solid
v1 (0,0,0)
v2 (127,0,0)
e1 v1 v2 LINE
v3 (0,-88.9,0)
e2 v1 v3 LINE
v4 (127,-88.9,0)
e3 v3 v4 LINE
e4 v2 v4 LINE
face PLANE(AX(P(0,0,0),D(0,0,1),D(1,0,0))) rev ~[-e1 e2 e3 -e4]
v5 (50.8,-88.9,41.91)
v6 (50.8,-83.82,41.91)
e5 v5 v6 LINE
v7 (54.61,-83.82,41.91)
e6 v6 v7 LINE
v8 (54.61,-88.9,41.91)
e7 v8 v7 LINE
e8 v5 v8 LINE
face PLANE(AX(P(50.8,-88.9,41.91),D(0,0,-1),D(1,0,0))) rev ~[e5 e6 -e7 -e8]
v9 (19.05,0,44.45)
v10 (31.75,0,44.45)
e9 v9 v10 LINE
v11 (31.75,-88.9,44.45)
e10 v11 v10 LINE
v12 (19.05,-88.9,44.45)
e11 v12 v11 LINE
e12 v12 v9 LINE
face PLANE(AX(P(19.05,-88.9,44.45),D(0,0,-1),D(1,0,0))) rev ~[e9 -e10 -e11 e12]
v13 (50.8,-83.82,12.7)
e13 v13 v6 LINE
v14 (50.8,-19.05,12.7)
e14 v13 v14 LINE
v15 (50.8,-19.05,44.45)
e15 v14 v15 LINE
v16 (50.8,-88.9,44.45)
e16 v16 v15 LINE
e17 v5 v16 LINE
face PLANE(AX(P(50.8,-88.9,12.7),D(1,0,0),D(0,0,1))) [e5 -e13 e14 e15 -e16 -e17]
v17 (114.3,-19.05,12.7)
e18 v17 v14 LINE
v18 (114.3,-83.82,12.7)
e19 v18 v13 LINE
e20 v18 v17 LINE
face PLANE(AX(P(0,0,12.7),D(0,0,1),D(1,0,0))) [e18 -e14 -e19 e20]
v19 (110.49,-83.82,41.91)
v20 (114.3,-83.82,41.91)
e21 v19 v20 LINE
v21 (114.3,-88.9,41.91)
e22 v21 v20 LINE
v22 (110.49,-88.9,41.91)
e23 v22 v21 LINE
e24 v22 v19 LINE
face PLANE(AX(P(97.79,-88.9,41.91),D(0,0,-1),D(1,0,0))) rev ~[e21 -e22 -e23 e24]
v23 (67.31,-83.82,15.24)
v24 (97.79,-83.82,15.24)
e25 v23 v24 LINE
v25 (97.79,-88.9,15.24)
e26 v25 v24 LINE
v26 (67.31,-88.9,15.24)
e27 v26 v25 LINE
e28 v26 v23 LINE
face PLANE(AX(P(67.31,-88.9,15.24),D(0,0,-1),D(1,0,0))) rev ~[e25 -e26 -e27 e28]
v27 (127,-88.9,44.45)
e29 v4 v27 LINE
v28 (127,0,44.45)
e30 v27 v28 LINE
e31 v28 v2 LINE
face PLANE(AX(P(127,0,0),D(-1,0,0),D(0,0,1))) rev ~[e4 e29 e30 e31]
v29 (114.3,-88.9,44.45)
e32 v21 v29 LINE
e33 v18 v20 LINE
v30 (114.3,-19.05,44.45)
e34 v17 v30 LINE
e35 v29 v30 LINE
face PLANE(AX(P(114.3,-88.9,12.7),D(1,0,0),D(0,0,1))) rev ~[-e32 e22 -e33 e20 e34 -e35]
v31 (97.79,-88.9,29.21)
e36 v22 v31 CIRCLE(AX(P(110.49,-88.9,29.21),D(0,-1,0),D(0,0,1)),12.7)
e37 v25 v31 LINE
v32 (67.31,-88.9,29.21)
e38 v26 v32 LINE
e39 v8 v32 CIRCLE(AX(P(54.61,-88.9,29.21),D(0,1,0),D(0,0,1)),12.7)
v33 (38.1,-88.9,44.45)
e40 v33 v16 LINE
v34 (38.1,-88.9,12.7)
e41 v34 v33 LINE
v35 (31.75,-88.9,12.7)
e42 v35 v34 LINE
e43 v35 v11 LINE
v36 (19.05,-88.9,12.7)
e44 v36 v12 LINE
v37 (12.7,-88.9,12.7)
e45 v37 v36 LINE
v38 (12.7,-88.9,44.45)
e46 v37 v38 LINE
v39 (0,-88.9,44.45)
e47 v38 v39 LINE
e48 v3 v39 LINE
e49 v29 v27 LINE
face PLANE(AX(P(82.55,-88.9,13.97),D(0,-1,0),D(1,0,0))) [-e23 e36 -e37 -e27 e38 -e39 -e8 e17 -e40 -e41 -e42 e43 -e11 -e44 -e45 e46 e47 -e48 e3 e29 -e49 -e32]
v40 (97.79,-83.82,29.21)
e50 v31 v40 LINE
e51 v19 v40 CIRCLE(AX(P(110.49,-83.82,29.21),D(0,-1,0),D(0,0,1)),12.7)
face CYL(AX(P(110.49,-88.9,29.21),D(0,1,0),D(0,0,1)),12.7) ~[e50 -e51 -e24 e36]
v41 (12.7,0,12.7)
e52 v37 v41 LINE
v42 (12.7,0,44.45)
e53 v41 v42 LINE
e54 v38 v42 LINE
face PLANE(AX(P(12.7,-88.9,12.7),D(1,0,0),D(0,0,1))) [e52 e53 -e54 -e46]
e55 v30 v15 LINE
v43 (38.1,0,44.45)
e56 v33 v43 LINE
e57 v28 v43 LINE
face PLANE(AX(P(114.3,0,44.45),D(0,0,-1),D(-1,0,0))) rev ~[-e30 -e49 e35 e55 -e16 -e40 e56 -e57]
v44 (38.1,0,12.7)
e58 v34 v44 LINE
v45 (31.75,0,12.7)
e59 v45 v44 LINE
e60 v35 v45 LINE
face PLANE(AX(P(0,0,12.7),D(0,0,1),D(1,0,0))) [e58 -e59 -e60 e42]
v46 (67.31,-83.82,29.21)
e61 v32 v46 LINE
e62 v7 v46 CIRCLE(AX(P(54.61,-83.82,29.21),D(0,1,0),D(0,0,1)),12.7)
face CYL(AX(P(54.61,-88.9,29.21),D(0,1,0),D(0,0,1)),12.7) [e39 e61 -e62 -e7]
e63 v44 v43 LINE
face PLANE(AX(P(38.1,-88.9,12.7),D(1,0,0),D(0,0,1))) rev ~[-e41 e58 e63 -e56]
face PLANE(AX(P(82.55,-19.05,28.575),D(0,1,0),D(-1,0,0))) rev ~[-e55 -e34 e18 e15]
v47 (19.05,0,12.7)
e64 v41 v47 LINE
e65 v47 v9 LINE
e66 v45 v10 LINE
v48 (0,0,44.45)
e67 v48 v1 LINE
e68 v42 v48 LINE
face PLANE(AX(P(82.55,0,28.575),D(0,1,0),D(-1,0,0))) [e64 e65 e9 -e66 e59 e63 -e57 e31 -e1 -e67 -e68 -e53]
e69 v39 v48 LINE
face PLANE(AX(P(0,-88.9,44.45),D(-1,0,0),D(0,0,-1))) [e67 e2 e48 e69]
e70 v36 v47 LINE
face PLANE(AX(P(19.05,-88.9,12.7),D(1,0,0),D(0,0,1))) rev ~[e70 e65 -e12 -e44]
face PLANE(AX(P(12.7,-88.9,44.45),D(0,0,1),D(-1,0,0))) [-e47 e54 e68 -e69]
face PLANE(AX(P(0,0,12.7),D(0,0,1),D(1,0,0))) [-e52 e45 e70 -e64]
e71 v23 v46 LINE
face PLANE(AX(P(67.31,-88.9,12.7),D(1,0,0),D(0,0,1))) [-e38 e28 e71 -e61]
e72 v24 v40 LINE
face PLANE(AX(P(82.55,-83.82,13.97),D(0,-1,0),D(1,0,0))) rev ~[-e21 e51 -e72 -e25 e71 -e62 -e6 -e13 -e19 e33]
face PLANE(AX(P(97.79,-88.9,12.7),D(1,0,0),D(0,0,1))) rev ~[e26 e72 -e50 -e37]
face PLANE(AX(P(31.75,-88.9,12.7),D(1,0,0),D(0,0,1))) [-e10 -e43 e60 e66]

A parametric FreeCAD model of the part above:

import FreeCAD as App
import Part
import Sketcher
from FreeCAD import Vector
Q = App.Units.Quantity


def edges_at(feature, points):
    """Names of the edges that pass closest to the given points."""
    edges = feature.Shape.Edges
    near = lambda p: min(range(len(edges)), key=lambda i: edges[i].distToShape(Part.Vertex(*p))[0])
    return sorted({f"Edge{near(p) + 1}" for p in points})


def add_polygon(sketch, points):
    """Adds a closed chain of lines whose ends are joined by coincident constraints."""
    first, n = sketch.GeometryCount, len(points)
    for a, b in zip(points, points[1:] + points[:1]):
        sketch.addGeometry(Part.LineSegment(App.Vector(*a, 0), App.Vector(*b, 0)), False)
    for i in range(n):
        sketch.addConstraint(Sketcher.Constraint("Coincident", first + i, 2, first + (i + 1) % n, 1))

doc = App.newDocument("Part")
body = doc.addObject("PartDesign::Body", "Body")

sketch1 = body.newObject("Sketcher::SketchObject", "Sketch")
sketch1.AttachmentSupport = (doc.getObject("XZ_Plane"), [""])
sketch1.MapMode = "FlatFace"
add_polygon(sketch1, [(0, 13), (0, 0), (127, 0), (127, 13)])
sketch1.addConstraint(Sketcher.Constraint("Vertical", 0))
sketch1.addConstraint(Sketcher.Constraint("Horizontal", 1))
sketch1.addConstraint(Sketcher.Constraint("Vertical", 2))
sketch1.addConstraint(Sketcher.Constraint("Horizontal", 3))
sketch1.addConstraint(Sketcher.Constraint("Coincident", 0, 2, -1, 1))
sketch1.addConstraint(Sketcher.Constraint("DistanceX", 1, 1, 1, 2, Q("5 in")))
sketch1.addConstraint(Sketcher.Constraint("DistanceY", 0, 2, 0, 1, Q("0.5 in")))
pad1 = body.newObject("PartDesign::Pad", "Pad")
pad1.Profile = sketch1
pad1.Length = Q("3.5 in")

sketch2 = body.newObject("Sketcher::SketchObject", "Sketch001")
sketch2.AttachmentSupport = (doc.getObject("XZ_Plane"), [""])
sketch2.MapMode = "FlatFace"
sketch2.AttachmentOffset = App.Placement(Vector(0, 0, 3.5 * 25.4), App.Rotation())
add_polygon(sketch2, [(0, 44), (0, 13), (13, 13), (13, 44)])
add_polygon(sketch2, [(19, 44), (19, 13), (32, 13), (32, 44)])
add_polygon(sketch2, [(38, 44), (38, 13), (51, 13), (51, 44)])
add_polygon(sketch2, [(114, 44), (114, 13), (127, 13), (127, 44)])
sketch2.addConstraint(Sketcher.Constraint("Vertical", 0))
sketch2.addConstraint(Sketcher.Constraint("Horizontal", 1))
sketch2.addConstraint(Sketcher.Constraint("Vertical", 2))
sketch2.addConstraint(Sketcher.Constraint("Horizontal", 3))
sketch2.addConstraint(Sketcher.Constraint("Vertical", 4))
sketch2.addConstraint(Sketcher.Constraint("Horizontal", 5))
sketch2.addConstraint(Sketcher.Constraint("Vertical", 6))
sketch2.addConstraint(Sketcher.Constraint("Horizontal", 7))
sketch2.addConstraint(Sketcher.Constraint("Vertical", 8))
sketch2.addConstraint(Sketcher.Constraint("Horizontal", 9))
sketch2.addConstraint(Sketcher.Constraint("Vertical", 10))
sketch2.addConstraint(Sketcher.Constraint("Horizontal", 11))
sketch2.addConstraint(Sketcher.Constraint("Vertical", 12))
sketch2.addConstraint(Sketcher.Constraint("Horizontal", 13))
sketch2.addConstraint(Sketcher.Constraint("Vertical", 14))
sketch2.addConstraint(Sketcher.Constraint("Horizontal", 15))
sketch2.addConstraint(Sketcher.Constraint("PointOnObject", 0, 2, -2))
sketch2.addConstraint(Sketcher.Constraint("Horizontal", 1, 2, 4, 2))
sketch2.addConstraint(Sketcher.Constraint("Horizontal", 3, 2, 6, 2))
sketch2.addConstraint(Sketcher.Constraint("Horizontal", 5, 2, 8, 2))
sketch2.addConstraint(Sketcher.Constraint("Horizontal", 7, 2, 10, 2))
sketch2.addConstraint(Sketcher.Constraint("Horizontal", 9, 2, 12, 2))
sketch2.addConstraint(Sketcher.Constraint("Horizontal", 11, 2, 14, 2))
sketch2.addConstraint(Sketcher.Constraint("Equal", 3, 5))
sketch2.addConstraint(Sketcher.Constraint("Equal", 7, 9))
sketch2.addConstraint(Sketcher.Constraint("Equal", 11, 13))
sketch2.addConstraint(Sketcher.Constraint("DistanceX", 1, 1, 1, 2, Q("0.5 in")))
sketch2.addConstraint(Sketcher.Constraint("DistanceX", -1, 1, 9, 2, Q("2 in")))
sketch2.addConstraint(Sketcher.Constraint("DistanceX", -1, 1, 13, 2, Q("5 in")))
sketch2.addConstraint(Sketcher.Constraint("DistanceY", 0, 2, 0, 1, Q("1.25 in")))
sketch2.addConstraint(Sketcher.Constraint("DistanceY", -1, 1, 0, 2, Q("0.5 in")))
sketch2.addConstraint(Sketcher.Constraint("DistanceX", -1, 1, 4, 2, Q("0.75 in")))
pad2 = body.newObject("PartDesign::Pad", "Pad001")
pad2.Profile = sketch2
pad2.Length = Q("3.5 in")
pad2.Reversed = True

sketch3 = body.newObject("Sketcher::SketchObject", "Sketch002")
sketch3.AttachmentSupport = (doc.getObject("XZ_Plane"), [""])
sketch3.MapMode = "FlatFace"
sketch3.AttachmentOffset = App.Placement(Vector(0, 0, 3.5 * 25.4), App.Rotation())
add_polygon(sketch3, [(51, 42), (51, 13), (67, 13), (67, 42)])
add_polygon(sketch3, [(98, 42), (98, 13), (114, 13), (114, 42)])
sketch3.addConstraint(Sketcher.Constraint("Vertical", 0))
sketch3.addConstraint(Sketcher.Constraint("Horizontal", 1))
sketch3.addConstraint(Sketcher.Constraint("Vertical", 2))
sketch3.addConstraint(Sketcher.Constraint("Horizontal", 3))
sketch3.addConstraint(Sketcher.Constraint("Vertical", 4))
sketch3.addConstraint(Sketcher.Constraint("Horizontal", 5))
sketch3.addConstraint(Sketcher.Constraint("Vertical", 6))
sketch3.addConstraint(Sketcher.Constraint("Horizontal", 7))
sketch3.addConstraint(Sketcher.Constraint("Horizontal", 1, 2, 4, 2))
sketch3.addConstraint(Sketcher.Constraint("Horizontal", 3, 2, 6, 2))
sketch3.addConstraint(Sketcher.Constraint("Equal", 3, 5))
sketch3.addConstraint(Sketcher.Constraint("DistanceX", -1, 1, 0, 2, Q("2 in")))
sketch3.addConstraint(Sketcher.Constraint("DistanceX", 1, 1, 1, 2, Q("0.65 in")))
sketch3.addConstraint(Sketcher.Constraint("DistanceY", 0, 2, 0, 1, Q("1.15 in")))
sketch3.addConstraint(Sketcher.Constraint("DistanceY", -1, 1, 0, 2, Q("0.5 in")))
sketch3.addConstraint(Sketcher.Constraint("DistanceX", -1, 1, 5, 2, Q("4.5 in")))
pad3 = body.newObject("PartDesign::Pad", "Pad002")
pad3.Profile = sketch3
pad3.Length = Q("0.2 in")
pad3.Reversed = True

sketch4 = body.newObject("Sketcher::SketchObject", "Sketch003")
sketch4.AttachmentSupport = (doc.getObject("XZ_Plane"), [""])
sketch4.MapMode = "FlatFace"
add_polygon(sketch4, [(114, 44), (114, 13), (51, 13), (51, 44)])
sketch4.addConstraint(Sketcher.Constraint("Vertical", 0))
sketch4.addConstraint(Sketcher.Constraint("Horizontal", 1))
sketch4.addConstraint(Sketcher.Constraint("Vertical", 2))
sketch4.addConstraint(Sketcher.Constraint("Horizontal", 3))
sketch4.addConstraint(Sketcher.Constraint("DistanceX", 1, 2, 1, 1, Q("2.5 in")))
sketch4.addConstraint(Sketcher.Constraint("DistanceX", -1, 1, 1, 2, Q("2 in")))
sketch4.addConstraint(Sketcher.Constraint("DistanceY", 0, 2, 0, 1, Q("1.25 in")))
sketch4.addConstraint(Sketcher.Constraint("DistanceY", -1, 1, 0, 2, Q("0.5 in")))
pad4 = body.newObject("PartDesign::Pad", "Pad003")
pad4.Profile = sketch4
pad4.Length = Q("0.75 in")

sketch5 = body.newObject("Sketcher::SketchObject", "Sketch004")
sketch5.AttachmentSupport = (doc.getObject("XZ_Plane"), [""])
sketch5.MapMode = "FlatFace"
sketch5.AttachmentOffset = App.Placement(Vector(0, 0, 3.5 * 25.4), App.Rotation())
add_polygon(sketch5, [(67.3, 15.2), (67.3, 12.7), (97.8, 12.7), (97.8, 15.2)])
sketch5.addConstraint(Sketcher.Constraint("Vertical", 0))
sketch5.addConstraint(Sketcher.Constraint("Horizontal", 1))
sketch5.addConstraint(Sketcher.Constraint("Vertical", 2))
sketch5.addConstraint(Sketcher.Constraint("Horizontal", 3))
sketch5.addConstraint(Sketcher.Constraint("DistanceX", 1, 1, 1, 2, Q("1.2 in")))
sketch5.addConstraint(Sketcher.Constraint("DistanceY", 0, 2, 0, 1, Q("0.1 in")))
sketch5.addConstraint(Sketcher.Constraint("DistanceY", -1, 1, 0, 2, Q("0.5 in")))
sketch5.addConstraint(Sketcher.Constraint("DistanceX", -1, 1, 0, 2, Q("2.65 in")))
pad5 = body.newObject("PartDesign::Pad", "Pad004")
pad5.Profile = sketch5
pad5.Length = Q("0.2 in")
pad5.Reversed = True
doc.recompute()

fillet = body.newObject("PartDesign::Fillet", "Fillet")
fillet.Base = (pad5, edges_at(pad5, [(67.31, -86.36, 41.91), (97.79, -86.36, 41.91)]))
fillet.Radius = Q("0.5 in")

doc.recompute()
